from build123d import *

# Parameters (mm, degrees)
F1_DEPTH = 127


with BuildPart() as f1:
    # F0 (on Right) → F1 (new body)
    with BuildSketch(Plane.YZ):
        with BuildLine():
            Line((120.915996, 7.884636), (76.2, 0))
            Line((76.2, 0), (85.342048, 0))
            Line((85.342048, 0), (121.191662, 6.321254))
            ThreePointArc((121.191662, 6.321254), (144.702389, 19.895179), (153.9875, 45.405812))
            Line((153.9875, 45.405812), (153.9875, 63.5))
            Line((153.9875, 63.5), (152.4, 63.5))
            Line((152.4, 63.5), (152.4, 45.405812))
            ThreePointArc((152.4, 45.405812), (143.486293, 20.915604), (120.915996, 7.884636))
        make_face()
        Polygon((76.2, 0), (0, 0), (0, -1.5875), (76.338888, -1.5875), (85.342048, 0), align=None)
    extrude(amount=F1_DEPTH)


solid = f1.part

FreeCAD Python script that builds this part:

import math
import FreeCAD as App
import Part
import Sketcher

V = App.Vector
Q = App.Units.Quantity

doc = App.newDocument("Part")
params = doc.addObject("Spreadsheet::Sheet", "Params")
for row, (alias, value) in enumerate([
    ("sketch1_radius", "1.5000001 in"),
    ("sketch1_width", "3 in"),
    ("sketch1_radius2", "1.5625 in"),
    ("pad1_length", "5 in"),
], start=1):
    params.set(f"A{row}", alias)
    params.set(f"B{row}", "=" + value)
    params.setAlias(f"B{row}", alias)

body = doc.addObject("PartDesign::Body", "Body")

sketch1 = body.newObject("Sketcher::SketchObject", "Sketch")
sketch1.AttachmentSupport = (doc.getObject("YZ_Plane"), [""])
sketch1.MapMode = "FlatFace"
sketch1.addGeometry(Part.LineSegment(V(120.915996, 7.884636, 0), V(76.2, 0, 0)), False)
sketch1.addGeometry(Part.LineSegment(V(76.2, 0, 0), V(0, 0, 0)), False)
sketch1.addGeometry(Part.LineSegment(V(0, 0, 0), V(0, -1.5875, 0)), False)
sketch1.addGeometry(Part.LineSegment(V(0, -1.5875, 0), V(76.338888, -1.5875, 0)), False)
sketch1.addGeometry(Part.LineSegment(V(76.338888, -1.5875, 0), V(85.342048, 0, 0)), False)
sketch1.addGeometry(Part.LineSegment(V(85.342048, 0, 0), V(121.191662, 6.321254, 0)), False)
sketch1.addGeometry(Part.ArcOfCircle(Part.Circle(V(114.299999, 45.405812, 0), V(0, 0, 1), 39.687501), math.radians(-79.999999), math.radians(0)), False)
sketch1.addGeometry(Part.LineSegment(V(153.9875, 45.405812, 0), V(153.9875, 63.5, 0)), False)
sketch1.addGeometry(Part.LineSegment(V(153.9875, 63.5, 0), V(152.4, 63.5, 0)), False)
sketch1.addGeometry(Part.LineSegment(V(152.4, 63.5, 0), V(152.4, 45.405812, 0)), False)
sketch1.addGeometry(Part.ArcOfCircle(Part.Circle(V(114.299998, 45.405813, 0), V(0, 0, 1), 38.100002), math.radians(-79.999997), math.radians(-0.000001)), False)
sketch1.addConstraint(Sketcher.Constraint("Coincident", 0, 2, 1, 1))
sketch1.addConstraint(Sketcher.Constraint("Coincident", 1, 2, 2, 1))
sketch1.addConstraint(Sketcher.Constraint("Coincident", 2, 2, 3, 1))
sketch1.addConstraint(Sketcher.Constraint("Coincident", 3, 2, 4, 1))
sketch1.addConstraint(Sketcher.Constraint("Coincident", 4, 2, 5, 1))
sketch1.addConstraint(Sketcher.Constraint("Tangent", 5, 2, 6, 1))
sketch1.addConstraint(Sketcher.Constraint("Tangent", 6, 2, 7, 1))
sketch1.addConstraint(Sketcher.Constraint("Coincident", 7, 2, 8, 1))
sketch1.addConstraint(Sketcher.Constraint("Coincident", 8, 2, 9, 1))
sketch1.addConstraint(Sketcher.Constraint("Tangent", 9, 2, 10, 2))
sketch1.addConstraint(Sketcher.Constraint("Tangent", 10, 1, 0, 1))
sketch1.addConstraint(Sketcher.Constraint("Horizontal", 1))
sketch1.addConstraint(Sketcher.Constraint("Vertical", 2))
sketch1.addConstraint(Sketcher.Constraint("Horizontal", 3))
sketch1.addConstraint(Sketcher.Constraint("Vertical", 7))
sketch1.addConstraint(Sketcher.Constraint("Horizontal", 8))
sketch1.addConstraint(Sketcher.Constraint("Vertical", 9))
sketch1.addConstraint(Sketcher.Constraint("Coincident", 1, 2, -1, 1))
sketch1.addConstraint(Sketcher.Constraint("Coincident", 10, 3, 6, 3))
sketch1.addConstraint(Sketcher.Constraint("PointOnObject", 4, 2, -1))
sketch1.addConstraint(Sketcher.Constraint("Parallel", 0, 4))
sketch1.addConstraint(Sketcher.Constraint("Parallel", 4, 5))
sketch1.addConstraint(Sketcher.Constraint("Equal", 8, 2))
sketch1.addConstraint(Sketcher.Constraint("Radius", 10, Q("1.5000001 in")))
sketch1.addConstraint(Sketcher.Constraint("DistanceX", 1, 2, 1, 1, Q("3 in")))
sketch1.addConstraint(Sketcher.Constraint("DistanceX", -1, 1, 8, 2, Q("6 in")))
sketch1.addConstraint(Sketcher.Constraint("Angle", 0, Q("-170.000001 deg")))
sketch1.addConstraint(Sketcher.Constraint("Radius", 6, Q("1.5625 in")))
sketch1.addConstraint(Sketcher.Constraint("DistanceY", -1, 1, 7, 2, Q("2.5 in")))
sketch1.setExpression("Constraints[23]", "Params.sketch1_radius")
sketch1.setExpression("Constraints[24]", "Params.sketch1_width")
sketch1.setExpression("Constraints[27]", "Params.sketch1_radius2")
pad1 = body.newObject("PartDesign::Pad", "Pad")
pad1.Profile = sketch1
pad1.setExpression("Length", "Params.pad1_length")

doc.recompute()
